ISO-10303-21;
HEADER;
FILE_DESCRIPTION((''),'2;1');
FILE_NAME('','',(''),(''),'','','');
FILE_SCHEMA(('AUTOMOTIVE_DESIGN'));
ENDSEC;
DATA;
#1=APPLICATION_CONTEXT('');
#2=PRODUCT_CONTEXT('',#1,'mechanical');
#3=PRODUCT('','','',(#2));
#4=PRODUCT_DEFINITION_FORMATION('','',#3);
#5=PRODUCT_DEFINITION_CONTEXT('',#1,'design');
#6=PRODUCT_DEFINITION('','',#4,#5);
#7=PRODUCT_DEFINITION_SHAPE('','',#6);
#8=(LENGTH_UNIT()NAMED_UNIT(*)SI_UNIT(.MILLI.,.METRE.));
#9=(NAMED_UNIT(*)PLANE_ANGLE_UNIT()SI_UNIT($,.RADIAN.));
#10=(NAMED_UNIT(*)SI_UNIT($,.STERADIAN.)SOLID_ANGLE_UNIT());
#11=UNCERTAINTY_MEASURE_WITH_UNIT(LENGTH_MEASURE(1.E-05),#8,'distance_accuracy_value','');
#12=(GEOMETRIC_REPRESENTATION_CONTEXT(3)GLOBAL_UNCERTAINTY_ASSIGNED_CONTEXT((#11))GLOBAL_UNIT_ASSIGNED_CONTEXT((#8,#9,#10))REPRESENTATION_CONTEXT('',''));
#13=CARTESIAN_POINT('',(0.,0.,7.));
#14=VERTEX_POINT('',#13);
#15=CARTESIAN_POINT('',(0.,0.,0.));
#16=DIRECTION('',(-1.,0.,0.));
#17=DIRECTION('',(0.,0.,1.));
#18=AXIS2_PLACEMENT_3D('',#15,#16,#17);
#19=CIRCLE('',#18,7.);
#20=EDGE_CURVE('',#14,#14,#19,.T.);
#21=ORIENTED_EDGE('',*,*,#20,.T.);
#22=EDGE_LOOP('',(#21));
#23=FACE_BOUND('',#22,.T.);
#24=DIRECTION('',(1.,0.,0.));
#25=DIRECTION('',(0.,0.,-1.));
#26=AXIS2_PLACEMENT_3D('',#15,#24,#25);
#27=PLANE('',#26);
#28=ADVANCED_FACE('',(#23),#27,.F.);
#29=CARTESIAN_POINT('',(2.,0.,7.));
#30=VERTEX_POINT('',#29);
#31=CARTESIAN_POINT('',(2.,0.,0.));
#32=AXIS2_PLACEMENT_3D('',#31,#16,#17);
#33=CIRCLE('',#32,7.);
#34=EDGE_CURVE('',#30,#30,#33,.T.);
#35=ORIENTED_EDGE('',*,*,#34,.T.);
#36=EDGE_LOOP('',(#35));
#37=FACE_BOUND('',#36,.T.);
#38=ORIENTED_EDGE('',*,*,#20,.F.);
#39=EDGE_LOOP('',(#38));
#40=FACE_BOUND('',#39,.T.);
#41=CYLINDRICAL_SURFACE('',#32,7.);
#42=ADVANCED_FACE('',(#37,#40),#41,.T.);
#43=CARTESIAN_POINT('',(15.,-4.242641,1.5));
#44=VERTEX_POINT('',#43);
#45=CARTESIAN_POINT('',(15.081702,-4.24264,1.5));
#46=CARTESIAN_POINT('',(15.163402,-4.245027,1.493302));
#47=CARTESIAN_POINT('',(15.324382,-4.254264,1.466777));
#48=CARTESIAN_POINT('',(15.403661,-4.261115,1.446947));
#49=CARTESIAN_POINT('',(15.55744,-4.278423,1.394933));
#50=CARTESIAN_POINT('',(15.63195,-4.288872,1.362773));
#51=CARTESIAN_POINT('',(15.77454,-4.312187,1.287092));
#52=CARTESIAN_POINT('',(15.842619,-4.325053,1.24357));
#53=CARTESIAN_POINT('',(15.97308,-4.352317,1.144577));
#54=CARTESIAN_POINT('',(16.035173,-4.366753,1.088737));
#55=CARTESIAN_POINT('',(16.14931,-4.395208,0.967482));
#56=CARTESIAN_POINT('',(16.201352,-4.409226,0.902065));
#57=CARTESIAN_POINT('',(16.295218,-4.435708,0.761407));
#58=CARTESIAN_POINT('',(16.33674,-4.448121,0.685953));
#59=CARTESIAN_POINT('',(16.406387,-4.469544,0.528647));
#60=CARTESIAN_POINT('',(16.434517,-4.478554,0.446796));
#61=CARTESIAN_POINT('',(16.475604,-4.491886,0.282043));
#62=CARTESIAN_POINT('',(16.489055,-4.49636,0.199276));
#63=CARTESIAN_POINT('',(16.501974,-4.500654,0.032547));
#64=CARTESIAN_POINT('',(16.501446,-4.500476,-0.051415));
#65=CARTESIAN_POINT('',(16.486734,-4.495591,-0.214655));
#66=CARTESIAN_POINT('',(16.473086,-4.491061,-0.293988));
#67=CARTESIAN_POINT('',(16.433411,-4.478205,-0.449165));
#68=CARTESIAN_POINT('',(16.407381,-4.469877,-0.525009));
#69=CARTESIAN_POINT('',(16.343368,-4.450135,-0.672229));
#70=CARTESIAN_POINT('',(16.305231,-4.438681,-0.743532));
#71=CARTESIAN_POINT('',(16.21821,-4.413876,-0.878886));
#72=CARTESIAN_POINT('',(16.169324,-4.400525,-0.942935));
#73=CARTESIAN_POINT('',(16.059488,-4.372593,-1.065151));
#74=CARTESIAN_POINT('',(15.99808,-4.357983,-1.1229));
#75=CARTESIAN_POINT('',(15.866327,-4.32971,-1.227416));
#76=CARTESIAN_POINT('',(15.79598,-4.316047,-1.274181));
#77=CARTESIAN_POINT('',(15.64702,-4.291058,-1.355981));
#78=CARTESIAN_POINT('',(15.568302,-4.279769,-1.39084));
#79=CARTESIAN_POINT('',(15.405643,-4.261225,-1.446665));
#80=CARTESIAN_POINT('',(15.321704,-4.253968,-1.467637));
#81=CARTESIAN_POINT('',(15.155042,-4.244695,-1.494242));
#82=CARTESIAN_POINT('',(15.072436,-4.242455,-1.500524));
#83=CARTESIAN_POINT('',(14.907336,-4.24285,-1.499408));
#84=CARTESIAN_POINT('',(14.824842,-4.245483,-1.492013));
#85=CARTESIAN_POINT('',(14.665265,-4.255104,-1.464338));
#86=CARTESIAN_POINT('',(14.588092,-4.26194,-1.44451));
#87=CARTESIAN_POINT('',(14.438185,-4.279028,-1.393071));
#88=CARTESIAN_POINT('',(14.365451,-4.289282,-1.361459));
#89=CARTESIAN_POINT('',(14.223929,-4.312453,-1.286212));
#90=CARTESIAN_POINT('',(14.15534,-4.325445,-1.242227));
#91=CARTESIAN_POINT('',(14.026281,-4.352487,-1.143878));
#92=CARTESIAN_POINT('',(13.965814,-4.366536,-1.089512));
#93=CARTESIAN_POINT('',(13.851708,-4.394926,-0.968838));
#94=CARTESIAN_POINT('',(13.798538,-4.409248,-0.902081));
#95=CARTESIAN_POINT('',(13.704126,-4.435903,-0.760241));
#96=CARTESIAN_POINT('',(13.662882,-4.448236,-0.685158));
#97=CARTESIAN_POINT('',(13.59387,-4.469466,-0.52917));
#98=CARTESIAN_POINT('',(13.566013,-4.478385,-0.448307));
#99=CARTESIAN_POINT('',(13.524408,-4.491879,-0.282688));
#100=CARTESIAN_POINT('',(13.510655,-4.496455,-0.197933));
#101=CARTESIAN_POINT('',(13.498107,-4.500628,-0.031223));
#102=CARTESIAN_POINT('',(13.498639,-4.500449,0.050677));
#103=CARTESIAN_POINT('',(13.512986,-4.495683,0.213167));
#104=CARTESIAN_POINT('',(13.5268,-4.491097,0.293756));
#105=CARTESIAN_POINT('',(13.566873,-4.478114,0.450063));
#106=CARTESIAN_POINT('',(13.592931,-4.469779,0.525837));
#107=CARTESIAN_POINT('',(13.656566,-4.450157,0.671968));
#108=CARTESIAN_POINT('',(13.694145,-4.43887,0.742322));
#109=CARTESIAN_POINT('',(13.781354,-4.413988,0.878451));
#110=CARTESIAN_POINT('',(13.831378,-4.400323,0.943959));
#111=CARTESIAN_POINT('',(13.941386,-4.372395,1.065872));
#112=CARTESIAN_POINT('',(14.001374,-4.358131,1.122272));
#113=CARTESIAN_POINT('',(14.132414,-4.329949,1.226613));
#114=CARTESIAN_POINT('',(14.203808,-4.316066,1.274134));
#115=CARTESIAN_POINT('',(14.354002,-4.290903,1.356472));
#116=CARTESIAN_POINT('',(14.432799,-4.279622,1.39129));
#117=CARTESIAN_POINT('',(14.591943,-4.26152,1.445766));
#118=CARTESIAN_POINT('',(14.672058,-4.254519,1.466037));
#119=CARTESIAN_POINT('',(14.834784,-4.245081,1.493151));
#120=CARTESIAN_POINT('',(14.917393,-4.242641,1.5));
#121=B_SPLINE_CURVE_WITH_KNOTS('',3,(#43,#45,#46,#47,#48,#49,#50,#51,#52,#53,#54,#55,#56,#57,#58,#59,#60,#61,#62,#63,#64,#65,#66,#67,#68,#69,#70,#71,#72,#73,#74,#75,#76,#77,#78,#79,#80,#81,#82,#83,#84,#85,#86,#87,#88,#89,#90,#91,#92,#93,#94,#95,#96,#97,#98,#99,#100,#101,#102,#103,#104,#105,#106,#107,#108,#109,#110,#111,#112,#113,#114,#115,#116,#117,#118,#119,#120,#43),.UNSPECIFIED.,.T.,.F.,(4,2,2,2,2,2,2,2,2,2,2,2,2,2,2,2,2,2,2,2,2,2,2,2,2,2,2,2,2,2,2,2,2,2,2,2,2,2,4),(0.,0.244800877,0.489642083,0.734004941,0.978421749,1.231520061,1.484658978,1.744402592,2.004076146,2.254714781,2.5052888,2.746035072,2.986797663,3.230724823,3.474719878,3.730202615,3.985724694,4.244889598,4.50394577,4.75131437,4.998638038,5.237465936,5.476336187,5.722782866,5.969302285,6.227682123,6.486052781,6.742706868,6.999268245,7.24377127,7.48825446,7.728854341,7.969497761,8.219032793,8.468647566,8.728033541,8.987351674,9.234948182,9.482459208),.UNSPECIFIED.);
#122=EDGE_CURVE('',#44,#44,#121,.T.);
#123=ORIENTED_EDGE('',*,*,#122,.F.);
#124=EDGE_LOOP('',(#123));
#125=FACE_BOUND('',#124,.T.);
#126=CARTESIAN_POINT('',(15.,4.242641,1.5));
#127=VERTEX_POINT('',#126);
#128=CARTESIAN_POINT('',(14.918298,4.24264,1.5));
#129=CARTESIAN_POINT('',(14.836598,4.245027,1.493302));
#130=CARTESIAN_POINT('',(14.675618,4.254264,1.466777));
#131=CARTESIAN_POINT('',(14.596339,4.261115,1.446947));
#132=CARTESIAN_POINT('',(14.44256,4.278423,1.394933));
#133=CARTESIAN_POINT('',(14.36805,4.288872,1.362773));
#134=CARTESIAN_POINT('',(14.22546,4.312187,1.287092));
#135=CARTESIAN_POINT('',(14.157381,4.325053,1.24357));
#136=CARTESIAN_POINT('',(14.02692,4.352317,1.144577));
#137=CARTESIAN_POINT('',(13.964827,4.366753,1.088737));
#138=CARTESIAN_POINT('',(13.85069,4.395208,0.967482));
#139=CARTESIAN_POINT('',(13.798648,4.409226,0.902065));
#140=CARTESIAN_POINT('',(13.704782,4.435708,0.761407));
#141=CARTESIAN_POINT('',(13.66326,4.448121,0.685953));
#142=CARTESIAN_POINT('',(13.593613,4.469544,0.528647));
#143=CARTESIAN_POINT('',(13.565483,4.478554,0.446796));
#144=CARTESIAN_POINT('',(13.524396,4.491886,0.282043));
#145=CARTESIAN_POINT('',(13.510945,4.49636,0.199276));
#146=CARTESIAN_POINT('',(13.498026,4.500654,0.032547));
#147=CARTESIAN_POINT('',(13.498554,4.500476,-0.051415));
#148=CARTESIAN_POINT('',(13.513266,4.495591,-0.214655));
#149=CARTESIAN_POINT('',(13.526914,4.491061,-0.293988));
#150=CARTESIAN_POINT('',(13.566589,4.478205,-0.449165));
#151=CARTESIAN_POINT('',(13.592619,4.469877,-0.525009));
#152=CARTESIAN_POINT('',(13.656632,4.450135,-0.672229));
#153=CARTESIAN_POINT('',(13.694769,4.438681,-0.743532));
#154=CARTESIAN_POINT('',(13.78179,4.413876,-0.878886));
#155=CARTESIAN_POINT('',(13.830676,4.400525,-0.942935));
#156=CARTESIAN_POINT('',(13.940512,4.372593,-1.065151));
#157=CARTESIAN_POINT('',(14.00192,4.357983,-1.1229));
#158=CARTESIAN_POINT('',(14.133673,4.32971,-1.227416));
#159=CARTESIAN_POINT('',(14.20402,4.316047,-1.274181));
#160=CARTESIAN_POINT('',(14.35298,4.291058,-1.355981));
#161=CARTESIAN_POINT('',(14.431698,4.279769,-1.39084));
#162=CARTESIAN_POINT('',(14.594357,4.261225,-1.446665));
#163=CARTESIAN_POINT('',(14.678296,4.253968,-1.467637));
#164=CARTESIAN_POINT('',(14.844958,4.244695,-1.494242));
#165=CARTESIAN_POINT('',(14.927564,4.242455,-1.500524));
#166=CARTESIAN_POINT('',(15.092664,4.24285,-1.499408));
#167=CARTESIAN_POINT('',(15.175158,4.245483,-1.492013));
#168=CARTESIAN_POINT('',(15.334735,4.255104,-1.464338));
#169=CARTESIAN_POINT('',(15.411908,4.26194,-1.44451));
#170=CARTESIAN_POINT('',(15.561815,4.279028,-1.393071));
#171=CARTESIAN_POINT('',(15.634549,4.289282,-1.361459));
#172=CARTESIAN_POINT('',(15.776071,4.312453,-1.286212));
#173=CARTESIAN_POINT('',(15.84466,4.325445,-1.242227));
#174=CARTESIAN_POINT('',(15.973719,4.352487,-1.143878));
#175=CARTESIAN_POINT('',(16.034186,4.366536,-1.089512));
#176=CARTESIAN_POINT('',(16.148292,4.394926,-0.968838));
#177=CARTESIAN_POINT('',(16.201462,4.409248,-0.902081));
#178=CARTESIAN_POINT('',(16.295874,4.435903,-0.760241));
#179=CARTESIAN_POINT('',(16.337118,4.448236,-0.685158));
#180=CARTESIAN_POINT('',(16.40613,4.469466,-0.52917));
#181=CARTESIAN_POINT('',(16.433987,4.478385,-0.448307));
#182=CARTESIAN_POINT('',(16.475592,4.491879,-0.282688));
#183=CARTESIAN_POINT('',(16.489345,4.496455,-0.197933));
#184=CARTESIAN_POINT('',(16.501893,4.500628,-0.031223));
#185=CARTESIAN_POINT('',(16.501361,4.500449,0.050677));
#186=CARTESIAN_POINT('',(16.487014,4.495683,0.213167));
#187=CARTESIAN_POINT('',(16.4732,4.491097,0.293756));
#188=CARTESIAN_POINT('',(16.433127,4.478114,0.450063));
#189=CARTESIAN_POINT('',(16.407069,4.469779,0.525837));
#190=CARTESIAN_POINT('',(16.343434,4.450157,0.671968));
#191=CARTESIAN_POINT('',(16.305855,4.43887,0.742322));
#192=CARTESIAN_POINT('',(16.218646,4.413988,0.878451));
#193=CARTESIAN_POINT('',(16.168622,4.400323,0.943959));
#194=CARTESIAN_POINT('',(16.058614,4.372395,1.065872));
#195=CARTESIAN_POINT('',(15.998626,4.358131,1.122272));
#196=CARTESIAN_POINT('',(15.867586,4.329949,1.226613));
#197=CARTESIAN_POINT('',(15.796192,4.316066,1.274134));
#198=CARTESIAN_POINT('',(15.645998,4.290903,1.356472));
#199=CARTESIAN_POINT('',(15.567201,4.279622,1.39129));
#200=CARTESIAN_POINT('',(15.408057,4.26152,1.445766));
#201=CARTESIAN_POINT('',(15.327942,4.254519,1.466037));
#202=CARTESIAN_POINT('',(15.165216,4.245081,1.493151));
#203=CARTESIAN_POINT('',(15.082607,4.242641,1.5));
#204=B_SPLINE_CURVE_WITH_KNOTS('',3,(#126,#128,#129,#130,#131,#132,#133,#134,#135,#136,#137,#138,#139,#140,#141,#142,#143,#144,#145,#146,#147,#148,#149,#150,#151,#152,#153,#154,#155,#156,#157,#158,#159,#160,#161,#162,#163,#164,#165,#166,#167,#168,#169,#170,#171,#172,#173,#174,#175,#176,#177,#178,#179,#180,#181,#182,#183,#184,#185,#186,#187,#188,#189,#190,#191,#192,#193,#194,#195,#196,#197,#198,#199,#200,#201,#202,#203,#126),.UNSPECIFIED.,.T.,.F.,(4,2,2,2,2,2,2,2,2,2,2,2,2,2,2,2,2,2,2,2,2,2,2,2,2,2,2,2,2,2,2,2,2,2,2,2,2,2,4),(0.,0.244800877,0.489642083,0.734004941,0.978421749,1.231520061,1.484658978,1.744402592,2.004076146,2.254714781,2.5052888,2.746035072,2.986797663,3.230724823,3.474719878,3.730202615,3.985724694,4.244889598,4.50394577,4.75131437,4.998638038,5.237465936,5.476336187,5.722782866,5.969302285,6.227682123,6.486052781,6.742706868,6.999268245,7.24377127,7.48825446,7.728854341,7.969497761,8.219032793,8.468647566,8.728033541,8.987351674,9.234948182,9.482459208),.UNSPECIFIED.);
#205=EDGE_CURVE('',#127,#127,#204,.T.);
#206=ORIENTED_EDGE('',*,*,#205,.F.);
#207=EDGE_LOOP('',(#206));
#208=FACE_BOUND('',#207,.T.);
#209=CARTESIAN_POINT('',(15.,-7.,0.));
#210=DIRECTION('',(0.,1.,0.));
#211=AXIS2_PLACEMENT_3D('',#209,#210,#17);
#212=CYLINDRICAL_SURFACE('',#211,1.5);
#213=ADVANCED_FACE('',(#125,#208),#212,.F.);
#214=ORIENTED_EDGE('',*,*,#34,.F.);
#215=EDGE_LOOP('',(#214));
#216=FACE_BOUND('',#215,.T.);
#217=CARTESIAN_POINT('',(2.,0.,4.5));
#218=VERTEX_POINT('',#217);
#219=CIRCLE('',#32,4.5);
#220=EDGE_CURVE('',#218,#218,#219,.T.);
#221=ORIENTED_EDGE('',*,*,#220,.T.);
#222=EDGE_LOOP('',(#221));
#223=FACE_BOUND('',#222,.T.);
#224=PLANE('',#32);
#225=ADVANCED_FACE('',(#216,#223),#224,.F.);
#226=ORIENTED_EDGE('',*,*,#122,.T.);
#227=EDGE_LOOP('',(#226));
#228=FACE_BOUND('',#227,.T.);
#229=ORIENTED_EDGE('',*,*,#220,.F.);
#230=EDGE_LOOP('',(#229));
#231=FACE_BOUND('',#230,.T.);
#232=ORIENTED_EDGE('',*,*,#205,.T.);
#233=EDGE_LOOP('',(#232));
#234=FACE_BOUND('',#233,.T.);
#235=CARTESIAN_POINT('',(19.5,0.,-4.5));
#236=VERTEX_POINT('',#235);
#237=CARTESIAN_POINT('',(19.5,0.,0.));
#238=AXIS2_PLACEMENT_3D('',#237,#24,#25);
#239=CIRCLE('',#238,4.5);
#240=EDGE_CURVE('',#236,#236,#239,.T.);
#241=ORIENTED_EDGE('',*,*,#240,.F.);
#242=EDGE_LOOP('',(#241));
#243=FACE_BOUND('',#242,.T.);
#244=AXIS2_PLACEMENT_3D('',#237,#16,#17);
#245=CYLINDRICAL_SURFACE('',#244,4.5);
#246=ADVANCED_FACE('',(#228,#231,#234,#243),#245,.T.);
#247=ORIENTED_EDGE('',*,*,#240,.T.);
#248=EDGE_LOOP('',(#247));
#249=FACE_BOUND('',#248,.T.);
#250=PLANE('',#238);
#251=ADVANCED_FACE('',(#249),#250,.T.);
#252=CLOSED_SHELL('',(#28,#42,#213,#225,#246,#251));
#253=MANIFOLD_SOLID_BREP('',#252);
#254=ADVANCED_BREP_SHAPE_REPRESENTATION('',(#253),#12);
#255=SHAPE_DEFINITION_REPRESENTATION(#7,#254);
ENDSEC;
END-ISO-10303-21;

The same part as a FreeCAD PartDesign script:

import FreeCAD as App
import Part
import Sketcher
Q = App.Units.Quantity

doc = App.newDocument("Part")
params = doc.addObject("Spreadsheet::Sheet", "Params")
for row, (alias, value) in enumerate([
    ("sketch1_diameter", "9 mm"),
    ("pad1_length", "19.5 mm"),
    ("sketch2_diameter", "14 mm"),
    ("pad2_length", "2 mm"),
    ("sketch3_diameter", "3 mm"),
], start=1):
    params.set(f"A{row}", alias)
    params.set(f"B{row}", "=" + value)
    params.setAlias(f"B{row}", alias)

body = doc.addObject("PartDesign::Body", "Body")

sketch1 = body.newObject("Sketcher::SketchObject", "Sketch")
sketch1.AttachmentSupport = (doc.getObject("YZ_Plane"), [""])
sketch1.MapMode = "FlatFace"
sketch1.addGeometry(Part.Circle(App.Vector(0, 0, 0), App.Vector(0, 0, 1), 4.5), False)
sketch1.addConstraint(Sketcher.Constraint("Coincident", 0, 3, -1, 1))
sketch1.addConstraint(Sketcher.Constraint("Diameter", 0, Q("9 mm")))
sketch1.setExpression("Constraints[1]", "Params.sketch1_diameter")
pad1 = body.newObject("PartDesign::Pad", "Pad")
pad1.Profile = sketch1
pad1.setExpression("Length", "Params.pad1_length")

sketch2 = body.newObject("Sketcher::SketchObject", "Sketch001")
sketch2.AttachmentSupport = (doc.getObject("YZ_Plane"), [""])
sketch2.MapMode = "FlatFace"
sketch2.addGeometry(Part.Circle(App.Vector(0, 0, 0), App.Vector(0, 0, 1), 7), False)
sketch2.addConstraint(Sketcher.Constraint("Coincident", 0, 3, -1, 1))
sketch2.addConstraint(Sketcher.Constraint("Diameter", 0, Q("14 mm")))
sketch2.setExpression("Constraints[1]", "Params.sketch2_diameter")
pad2 = body.newObject("PartDesign::Pad", "Pad001")
pad2.Profile = sketch2
pad2.setExpression("Length", "Params.pad2_length")

sketch3 = body.newObject("Sketcher::SketchObject", "Sketch002")
sketch3.AttachmentSupport = (doc.getObject("XZ_Plane"), [""])
sketch3.MapMode = "FlatFace"
sketch3.addGeometry(Part.Circle(App.Vector(15, 0, 0), App.Vector(0, 0, 1), 1.5), False)
sketch3.addConstraint(Sketcher.Constraint("PointOnObject", 0, 3, -1))
sketch3.addConstraint(Sketcher.Constraint("Diameter", 0, Q("3 mm")))
sketch3.addConstraint(Sketcher.Constraint("DistanceX", -1, 1, 0, 3, Q("15 mm")))
sketch3.setExpression("Constraints[1]", "Params.sketch3_diameter")
pocket1 = body.newObject("PartDesign::Pocket", "Pocket")
pocket1.Profile = sketch3
pocket1.Type = "ThroughAll"
pocket1.Midplane = True

doc.recompute()
